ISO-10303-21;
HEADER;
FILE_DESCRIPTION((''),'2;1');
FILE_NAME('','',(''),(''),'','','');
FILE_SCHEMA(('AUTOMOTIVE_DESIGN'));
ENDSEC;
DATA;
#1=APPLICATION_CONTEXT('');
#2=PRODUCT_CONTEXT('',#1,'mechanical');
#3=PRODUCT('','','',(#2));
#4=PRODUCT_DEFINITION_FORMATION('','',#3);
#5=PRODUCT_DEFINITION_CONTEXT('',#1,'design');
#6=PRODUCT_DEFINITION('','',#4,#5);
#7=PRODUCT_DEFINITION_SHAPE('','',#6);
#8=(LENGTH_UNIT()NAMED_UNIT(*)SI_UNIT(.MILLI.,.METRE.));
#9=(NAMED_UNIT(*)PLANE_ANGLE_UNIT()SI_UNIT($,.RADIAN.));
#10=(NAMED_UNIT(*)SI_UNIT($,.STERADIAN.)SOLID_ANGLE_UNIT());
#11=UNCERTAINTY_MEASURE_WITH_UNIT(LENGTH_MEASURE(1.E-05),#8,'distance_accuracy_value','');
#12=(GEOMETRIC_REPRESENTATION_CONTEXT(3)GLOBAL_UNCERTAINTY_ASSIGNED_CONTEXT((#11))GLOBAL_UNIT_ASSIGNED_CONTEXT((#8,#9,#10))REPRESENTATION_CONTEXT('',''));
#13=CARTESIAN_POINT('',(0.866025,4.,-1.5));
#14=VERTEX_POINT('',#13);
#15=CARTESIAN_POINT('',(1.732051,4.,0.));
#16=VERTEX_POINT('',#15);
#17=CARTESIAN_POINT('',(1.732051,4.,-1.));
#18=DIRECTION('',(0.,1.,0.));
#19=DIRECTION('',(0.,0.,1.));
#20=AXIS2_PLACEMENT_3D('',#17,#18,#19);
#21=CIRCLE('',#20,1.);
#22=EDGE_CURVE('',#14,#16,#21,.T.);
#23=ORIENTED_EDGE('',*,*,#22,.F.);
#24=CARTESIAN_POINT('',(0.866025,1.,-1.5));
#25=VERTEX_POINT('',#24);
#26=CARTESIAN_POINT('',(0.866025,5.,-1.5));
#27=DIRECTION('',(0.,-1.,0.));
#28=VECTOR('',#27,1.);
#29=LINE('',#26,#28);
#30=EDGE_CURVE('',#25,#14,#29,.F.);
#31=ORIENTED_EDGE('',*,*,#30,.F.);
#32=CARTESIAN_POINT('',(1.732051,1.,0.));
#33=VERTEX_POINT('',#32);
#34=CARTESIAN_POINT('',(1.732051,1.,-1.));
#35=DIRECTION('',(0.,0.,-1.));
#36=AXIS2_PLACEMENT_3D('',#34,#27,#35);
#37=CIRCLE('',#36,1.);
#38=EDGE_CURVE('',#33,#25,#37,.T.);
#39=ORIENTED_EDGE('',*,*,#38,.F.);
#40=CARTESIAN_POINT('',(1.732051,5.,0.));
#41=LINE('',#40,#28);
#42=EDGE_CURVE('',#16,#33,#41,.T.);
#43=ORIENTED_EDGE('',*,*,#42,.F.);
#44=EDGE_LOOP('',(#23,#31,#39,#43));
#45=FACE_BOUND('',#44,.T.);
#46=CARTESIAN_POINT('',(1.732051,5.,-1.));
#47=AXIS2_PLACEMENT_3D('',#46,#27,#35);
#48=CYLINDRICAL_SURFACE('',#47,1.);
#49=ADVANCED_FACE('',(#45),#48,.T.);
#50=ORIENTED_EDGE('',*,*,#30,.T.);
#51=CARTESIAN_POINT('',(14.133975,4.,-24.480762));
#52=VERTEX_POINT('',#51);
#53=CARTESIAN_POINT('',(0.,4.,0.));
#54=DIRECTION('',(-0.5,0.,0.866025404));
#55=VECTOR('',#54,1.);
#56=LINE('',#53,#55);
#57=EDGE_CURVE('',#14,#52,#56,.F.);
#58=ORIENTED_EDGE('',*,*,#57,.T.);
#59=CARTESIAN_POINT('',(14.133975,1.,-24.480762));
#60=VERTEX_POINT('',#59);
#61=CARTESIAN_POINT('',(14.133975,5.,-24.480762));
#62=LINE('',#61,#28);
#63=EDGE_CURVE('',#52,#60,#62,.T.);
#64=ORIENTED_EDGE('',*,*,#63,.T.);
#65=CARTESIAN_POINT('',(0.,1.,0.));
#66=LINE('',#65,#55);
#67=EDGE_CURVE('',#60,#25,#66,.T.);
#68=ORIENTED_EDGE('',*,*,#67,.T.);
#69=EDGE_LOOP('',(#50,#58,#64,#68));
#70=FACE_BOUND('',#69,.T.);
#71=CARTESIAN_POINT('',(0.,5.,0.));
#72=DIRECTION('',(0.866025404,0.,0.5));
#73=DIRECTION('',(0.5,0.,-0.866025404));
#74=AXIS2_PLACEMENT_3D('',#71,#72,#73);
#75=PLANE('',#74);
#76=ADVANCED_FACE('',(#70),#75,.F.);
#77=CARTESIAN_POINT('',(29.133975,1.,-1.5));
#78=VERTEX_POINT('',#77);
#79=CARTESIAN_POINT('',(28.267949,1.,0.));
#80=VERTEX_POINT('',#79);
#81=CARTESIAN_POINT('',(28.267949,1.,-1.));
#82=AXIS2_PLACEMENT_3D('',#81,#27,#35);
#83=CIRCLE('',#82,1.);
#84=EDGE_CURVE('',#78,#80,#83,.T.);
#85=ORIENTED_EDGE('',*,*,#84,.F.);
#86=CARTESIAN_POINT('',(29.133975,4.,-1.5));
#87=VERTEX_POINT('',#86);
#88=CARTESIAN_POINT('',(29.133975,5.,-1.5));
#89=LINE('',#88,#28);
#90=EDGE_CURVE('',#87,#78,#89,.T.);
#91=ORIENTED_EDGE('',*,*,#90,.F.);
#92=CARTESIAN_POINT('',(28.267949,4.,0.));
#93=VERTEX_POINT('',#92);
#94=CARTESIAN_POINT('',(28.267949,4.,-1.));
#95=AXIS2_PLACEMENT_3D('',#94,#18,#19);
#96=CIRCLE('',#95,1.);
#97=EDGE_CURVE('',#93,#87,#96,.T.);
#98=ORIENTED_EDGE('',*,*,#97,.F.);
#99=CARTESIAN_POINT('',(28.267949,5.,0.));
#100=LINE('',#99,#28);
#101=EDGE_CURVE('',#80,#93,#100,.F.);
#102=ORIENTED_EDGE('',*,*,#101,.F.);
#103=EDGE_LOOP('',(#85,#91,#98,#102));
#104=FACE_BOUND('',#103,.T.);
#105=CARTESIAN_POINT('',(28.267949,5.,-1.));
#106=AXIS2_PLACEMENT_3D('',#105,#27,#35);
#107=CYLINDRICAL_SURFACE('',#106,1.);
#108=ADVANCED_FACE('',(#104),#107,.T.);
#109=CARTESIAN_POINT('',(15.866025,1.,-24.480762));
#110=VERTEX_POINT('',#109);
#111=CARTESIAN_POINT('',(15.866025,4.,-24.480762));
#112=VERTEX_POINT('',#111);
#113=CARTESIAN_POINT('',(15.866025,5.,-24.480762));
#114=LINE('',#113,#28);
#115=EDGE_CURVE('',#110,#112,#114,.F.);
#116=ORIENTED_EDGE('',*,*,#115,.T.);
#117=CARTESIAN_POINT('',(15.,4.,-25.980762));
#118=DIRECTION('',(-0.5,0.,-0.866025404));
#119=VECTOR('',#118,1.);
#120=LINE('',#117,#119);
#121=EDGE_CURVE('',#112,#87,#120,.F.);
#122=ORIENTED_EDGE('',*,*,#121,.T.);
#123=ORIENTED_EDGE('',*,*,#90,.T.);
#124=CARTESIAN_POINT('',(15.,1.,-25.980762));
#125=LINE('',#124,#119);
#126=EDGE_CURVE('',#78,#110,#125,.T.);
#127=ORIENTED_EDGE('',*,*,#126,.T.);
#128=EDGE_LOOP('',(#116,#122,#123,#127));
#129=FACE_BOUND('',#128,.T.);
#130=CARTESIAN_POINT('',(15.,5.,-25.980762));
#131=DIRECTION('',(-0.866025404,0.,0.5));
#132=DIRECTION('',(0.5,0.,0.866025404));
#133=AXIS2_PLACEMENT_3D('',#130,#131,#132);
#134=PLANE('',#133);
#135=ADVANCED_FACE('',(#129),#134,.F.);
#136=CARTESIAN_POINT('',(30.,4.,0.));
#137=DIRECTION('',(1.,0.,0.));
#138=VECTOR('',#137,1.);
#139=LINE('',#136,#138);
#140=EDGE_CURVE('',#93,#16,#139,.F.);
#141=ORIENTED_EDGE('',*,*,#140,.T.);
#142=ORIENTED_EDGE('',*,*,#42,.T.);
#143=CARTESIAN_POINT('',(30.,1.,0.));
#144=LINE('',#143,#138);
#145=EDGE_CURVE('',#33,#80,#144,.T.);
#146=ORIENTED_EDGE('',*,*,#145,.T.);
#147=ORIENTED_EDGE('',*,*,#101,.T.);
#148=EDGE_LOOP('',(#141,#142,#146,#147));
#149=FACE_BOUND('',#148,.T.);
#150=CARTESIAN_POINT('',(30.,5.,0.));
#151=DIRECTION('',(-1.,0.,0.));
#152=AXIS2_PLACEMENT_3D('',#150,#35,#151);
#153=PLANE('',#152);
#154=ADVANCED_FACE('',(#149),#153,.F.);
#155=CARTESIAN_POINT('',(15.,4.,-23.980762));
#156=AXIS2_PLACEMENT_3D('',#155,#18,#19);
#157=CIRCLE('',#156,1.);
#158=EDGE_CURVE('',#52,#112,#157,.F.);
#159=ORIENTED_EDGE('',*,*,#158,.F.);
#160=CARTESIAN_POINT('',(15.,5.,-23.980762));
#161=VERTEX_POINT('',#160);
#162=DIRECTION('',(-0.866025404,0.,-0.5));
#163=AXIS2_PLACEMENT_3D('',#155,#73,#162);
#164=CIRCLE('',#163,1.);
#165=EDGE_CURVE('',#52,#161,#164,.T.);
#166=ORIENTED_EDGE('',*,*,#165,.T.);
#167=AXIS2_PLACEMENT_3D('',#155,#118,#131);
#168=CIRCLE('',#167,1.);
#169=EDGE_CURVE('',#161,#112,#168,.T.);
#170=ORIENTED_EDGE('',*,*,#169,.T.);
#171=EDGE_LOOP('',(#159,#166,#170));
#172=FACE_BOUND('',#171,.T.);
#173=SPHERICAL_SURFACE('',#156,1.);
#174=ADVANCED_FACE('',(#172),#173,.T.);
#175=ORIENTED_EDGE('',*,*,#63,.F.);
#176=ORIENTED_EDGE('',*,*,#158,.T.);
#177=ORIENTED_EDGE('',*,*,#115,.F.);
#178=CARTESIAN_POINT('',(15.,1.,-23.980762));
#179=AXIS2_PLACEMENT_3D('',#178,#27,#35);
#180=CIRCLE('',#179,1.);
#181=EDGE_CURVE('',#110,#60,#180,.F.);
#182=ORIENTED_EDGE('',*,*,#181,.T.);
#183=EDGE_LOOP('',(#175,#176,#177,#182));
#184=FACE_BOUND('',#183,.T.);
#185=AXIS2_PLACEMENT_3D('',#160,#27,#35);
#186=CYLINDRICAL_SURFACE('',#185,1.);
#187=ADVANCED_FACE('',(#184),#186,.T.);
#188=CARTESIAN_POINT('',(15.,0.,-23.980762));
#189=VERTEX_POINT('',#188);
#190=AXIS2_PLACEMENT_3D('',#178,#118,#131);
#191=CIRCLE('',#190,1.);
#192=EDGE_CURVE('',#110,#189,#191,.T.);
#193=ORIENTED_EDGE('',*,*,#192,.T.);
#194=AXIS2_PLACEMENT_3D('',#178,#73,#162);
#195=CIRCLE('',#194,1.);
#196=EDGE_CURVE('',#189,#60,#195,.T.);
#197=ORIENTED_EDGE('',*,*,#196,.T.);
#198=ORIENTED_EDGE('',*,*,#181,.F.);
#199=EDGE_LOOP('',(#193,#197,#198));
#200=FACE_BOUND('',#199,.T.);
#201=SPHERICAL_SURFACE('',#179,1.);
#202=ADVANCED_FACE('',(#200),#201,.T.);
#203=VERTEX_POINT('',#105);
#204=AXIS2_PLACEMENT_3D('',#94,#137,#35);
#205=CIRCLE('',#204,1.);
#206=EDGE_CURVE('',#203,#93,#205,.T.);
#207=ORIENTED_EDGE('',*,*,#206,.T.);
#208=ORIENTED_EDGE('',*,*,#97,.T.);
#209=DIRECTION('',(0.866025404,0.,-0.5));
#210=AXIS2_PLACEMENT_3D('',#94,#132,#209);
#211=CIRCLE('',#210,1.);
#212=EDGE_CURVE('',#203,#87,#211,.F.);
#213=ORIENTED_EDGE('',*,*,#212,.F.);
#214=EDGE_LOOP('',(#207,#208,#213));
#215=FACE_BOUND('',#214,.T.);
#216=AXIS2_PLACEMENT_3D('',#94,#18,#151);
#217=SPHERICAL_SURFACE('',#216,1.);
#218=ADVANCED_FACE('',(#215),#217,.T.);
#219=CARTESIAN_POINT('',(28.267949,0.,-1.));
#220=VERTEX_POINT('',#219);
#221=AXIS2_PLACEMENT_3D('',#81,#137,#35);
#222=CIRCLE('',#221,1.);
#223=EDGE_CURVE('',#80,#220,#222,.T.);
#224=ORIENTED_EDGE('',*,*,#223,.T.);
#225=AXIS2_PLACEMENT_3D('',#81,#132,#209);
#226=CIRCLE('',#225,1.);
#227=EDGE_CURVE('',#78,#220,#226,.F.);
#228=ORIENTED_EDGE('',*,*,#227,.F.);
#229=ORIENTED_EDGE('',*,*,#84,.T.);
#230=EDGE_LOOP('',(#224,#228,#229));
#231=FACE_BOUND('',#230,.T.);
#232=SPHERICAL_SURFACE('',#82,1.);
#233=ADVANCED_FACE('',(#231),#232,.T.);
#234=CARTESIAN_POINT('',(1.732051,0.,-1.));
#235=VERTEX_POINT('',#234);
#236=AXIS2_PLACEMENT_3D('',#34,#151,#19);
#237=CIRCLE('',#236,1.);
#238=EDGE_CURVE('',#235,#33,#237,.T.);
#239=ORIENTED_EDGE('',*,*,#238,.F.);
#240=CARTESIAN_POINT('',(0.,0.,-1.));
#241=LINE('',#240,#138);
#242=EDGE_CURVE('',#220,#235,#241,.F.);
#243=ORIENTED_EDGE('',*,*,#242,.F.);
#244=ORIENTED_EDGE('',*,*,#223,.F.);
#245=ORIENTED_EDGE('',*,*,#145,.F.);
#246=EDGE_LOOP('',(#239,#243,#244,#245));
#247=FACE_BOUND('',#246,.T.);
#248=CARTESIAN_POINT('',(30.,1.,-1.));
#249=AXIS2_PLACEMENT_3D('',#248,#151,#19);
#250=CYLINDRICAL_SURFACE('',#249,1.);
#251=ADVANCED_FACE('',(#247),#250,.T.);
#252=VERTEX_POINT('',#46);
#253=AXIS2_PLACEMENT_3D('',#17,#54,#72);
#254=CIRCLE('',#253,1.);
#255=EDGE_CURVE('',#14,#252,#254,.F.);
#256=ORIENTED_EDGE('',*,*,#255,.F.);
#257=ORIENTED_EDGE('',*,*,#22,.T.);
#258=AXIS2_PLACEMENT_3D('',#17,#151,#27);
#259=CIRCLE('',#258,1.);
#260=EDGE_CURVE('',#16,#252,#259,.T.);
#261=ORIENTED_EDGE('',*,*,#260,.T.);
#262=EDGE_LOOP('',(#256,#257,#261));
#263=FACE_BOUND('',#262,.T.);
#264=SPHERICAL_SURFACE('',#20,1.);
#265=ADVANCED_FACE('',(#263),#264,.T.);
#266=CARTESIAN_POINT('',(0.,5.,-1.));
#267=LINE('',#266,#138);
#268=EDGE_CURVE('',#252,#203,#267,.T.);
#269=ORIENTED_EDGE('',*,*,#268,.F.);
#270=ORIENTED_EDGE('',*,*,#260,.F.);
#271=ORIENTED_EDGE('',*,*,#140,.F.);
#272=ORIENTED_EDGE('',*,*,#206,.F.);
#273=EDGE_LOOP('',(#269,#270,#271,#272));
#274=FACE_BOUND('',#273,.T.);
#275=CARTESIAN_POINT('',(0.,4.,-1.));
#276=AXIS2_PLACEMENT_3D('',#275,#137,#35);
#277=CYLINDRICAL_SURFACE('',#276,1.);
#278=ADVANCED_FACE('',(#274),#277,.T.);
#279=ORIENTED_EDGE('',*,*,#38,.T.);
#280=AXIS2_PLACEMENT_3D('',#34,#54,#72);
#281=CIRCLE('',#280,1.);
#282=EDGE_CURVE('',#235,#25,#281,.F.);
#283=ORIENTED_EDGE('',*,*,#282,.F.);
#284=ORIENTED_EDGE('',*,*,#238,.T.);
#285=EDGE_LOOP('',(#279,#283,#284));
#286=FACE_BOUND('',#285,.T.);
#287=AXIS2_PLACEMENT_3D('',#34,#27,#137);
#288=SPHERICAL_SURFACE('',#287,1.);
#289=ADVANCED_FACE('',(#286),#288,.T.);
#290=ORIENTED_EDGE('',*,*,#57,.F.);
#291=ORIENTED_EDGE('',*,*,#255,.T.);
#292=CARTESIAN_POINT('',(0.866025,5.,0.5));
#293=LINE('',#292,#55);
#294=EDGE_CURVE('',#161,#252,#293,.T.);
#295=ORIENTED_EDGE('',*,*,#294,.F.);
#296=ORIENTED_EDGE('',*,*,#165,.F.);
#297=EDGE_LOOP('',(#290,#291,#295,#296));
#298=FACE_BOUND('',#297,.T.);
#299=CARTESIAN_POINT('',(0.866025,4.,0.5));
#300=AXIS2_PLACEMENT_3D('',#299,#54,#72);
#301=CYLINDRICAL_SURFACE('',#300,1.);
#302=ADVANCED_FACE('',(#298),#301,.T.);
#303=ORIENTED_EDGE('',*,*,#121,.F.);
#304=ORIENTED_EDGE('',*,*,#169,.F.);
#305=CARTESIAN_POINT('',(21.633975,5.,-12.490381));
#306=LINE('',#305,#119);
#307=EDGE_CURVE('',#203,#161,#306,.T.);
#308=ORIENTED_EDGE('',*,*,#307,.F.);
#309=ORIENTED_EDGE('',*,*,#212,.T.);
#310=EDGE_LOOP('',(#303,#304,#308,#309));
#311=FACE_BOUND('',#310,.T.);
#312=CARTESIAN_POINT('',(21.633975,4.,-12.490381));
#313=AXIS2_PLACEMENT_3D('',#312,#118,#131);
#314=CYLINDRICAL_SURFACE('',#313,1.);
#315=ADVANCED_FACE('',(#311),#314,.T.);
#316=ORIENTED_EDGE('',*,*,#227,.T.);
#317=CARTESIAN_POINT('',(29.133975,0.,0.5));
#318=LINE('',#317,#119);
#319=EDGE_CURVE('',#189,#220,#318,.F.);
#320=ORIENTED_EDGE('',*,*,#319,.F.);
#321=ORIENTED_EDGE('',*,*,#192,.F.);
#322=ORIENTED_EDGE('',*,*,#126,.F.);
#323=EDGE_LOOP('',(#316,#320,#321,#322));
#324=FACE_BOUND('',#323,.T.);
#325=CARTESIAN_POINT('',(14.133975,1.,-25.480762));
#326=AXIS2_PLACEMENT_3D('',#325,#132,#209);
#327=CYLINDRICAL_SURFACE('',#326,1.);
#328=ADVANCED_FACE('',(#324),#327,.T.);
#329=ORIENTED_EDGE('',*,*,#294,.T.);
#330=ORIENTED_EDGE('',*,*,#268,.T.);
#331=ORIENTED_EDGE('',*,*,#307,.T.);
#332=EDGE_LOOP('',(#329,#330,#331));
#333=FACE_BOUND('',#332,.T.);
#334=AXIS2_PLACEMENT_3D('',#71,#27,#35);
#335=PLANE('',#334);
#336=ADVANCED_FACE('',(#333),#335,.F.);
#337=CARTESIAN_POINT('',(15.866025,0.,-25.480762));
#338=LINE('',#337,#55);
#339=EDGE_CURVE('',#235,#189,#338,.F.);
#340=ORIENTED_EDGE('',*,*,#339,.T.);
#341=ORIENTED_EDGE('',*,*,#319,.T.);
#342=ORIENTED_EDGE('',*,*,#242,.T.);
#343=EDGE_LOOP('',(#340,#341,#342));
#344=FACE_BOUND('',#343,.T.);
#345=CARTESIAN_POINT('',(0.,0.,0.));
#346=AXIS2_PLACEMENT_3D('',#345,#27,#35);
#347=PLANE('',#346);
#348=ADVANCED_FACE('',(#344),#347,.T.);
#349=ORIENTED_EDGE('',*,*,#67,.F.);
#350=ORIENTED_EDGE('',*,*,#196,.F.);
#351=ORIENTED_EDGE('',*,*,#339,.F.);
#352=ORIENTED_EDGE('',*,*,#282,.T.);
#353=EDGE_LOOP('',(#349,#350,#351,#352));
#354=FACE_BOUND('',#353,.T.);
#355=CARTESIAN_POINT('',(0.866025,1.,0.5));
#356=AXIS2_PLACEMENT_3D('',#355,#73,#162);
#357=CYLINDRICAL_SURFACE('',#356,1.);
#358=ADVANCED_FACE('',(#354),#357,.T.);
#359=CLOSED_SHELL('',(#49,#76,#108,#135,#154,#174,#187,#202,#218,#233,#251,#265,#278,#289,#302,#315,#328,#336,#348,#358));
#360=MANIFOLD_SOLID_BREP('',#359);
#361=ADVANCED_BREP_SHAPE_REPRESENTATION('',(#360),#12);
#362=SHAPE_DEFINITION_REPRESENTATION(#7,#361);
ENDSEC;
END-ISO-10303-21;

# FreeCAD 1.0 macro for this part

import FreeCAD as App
import Part
import Sketcher
Q = App.Units.Quantity


def add_polygon(sketch, points):
    """Adds a closed chain of lines whose ends are joined by coincident constraints."""
    first, n = sketch.GeometryCount, len(points)
    for a, b in zip(points, points[1:] + points[:1]):
        sketch.addGeometry(Part.LineSegment(App.Vector(*a, 0), App.Vector(*b, 0)), False)
    for i in range(n):
        sketch.addConstraint(Sketcher.Constraint("Coincident", first + i, 2, first + (i + 1) % n, 1))

doc = App.newDocument("Part")
body = doc.addObject("PartDesign::Body", "Body")

sketch1 = body.newObject("Sketcher::SketchObject", "Sketch")
sketch1.AttachmentSupport = (doc.getObject("XZ_Plane"), [""])
sketch1.MapMode = "FlatFace"
add_polygon(sketch1, [(15, -26), (0, 0), (30, 0)])
sketch1.addConstraint([
    Sketcher.Constraint("Horizontal", 1),
    Sketcher.Constraint("Coincident", 0, 2, -1, 1),
    Sketcher.Constraint("Equal", 0, 2),
    Sketcher.Constraint("DistanceX", 1, 1, 1, 2, Q("30 mm")),
    Sketcher.Constraint("Angle", 0, Q("120 deg")),
])
pad1 = body.newObject("PartDesign::Pad", "Pad")
pad1.Profile = sketch1
pad1.Length = 5
pad1.Reversed = True
doc.recompute()

fillet = body.newObject("PartDesign::Fillet", "Fillet")
fillet.Base = (pad1, ["Edge1"])
fillet.UseAllEdges = True
fillet.Radius = 1

doc.recompute()
